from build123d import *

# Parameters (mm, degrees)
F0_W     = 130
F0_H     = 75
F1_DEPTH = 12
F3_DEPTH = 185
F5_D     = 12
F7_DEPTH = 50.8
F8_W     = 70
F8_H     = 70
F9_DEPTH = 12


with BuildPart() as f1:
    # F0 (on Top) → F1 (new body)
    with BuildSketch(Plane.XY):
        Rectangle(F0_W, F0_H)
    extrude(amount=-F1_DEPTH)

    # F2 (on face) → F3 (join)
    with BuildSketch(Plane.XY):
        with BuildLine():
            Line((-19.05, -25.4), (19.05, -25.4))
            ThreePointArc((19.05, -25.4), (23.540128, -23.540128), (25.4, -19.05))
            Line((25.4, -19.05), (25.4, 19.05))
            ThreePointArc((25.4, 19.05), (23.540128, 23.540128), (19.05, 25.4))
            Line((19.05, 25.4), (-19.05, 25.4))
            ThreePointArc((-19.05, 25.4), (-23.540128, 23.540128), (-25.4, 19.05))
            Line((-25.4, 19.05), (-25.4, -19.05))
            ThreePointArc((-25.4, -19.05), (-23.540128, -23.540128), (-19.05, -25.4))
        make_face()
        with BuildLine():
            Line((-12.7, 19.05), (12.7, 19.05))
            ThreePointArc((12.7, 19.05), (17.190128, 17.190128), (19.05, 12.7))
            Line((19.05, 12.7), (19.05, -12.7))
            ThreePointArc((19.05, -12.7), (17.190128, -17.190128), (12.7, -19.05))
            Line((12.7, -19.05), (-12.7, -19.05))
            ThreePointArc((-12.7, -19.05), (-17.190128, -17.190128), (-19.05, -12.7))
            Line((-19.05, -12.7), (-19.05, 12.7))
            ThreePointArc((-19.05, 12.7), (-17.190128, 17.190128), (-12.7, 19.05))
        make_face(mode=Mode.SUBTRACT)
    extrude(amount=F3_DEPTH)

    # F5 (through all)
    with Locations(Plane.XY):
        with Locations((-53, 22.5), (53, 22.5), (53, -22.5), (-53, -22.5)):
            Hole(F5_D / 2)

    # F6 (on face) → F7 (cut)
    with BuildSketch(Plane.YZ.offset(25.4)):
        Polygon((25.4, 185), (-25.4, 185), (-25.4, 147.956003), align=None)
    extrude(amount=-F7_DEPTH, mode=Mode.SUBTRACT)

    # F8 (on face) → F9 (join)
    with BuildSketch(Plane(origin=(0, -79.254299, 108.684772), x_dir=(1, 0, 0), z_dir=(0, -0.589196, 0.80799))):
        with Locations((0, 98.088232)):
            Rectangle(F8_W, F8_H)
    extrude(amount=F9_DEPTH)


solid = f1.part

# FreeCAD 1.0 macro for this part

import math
import FreeCAD as App
import Part
import Sketcher
from FreeCAD import Vector
Q = App.Units.Quantity


def add_polygon(sketch, points):
    """Adds a closed chain of lines whose ends are joined by coincident constraints."""
    first, n = sketch.GeometryCount, len(points)
    for a, b in zip(points, points[1:] + points[:1]):
        sketch.addGeometry(Part.LineSegment(App.Vector(*a, 0), App.Vector(*b, 0)), False)
    for i in range(n):
        sketch.addConstraint(Sketcher.Constraint("Coincident", first + i, 2, first + (i + 1) % n, 1))

doc = App.newDocument("Part")
params = doc.addObject("Spreadsheet::Sheet", "Params")
for row, (alias, value) in enumerate([
    ("sketch1_width", "130 mm"),
    ("sketch1_height", "75 mm"),
    ("pad1_length", "12 mm"),
    ("sketch2_radius", "6.35 mm"),
    ("sketch2_width", "38.1 mm"),
    ("pad2_length", "185 mm"),
    ("sketch3_diameter", "12 mm"),
    ("hole_diameter", "12 mm"),
    ("sketch4_width", "50.8 mm"),
    ("pocket1_length", "50.8 mm"),
    ("sketch5_width", "70 mm"),
    ("pad3_length", "12 mm"),
], start=1):
    params.set(f"A{row}", alias)
    params.set(f"B{row}", "=" + value)
    params.setAlias(f"B{row}", alias)

body = doc.addObject("PartDesign::Body", "Body")

sketch1 = body.newObject("Sketcher::SketchObject", "Sketch")
sketch1.AttachmentSupport = (doc.getObject("XY_Plane"), [""])
sketch1.MapMode = "FlatFace"
add_polygon(sketch1, [(-65, 37.5), (-65, -37.5), (65, -37.5), (65, 37.5)])
sketch1.addConstraint(Sketcher.Constraint("Vertical", 0))
sketch1.addConstraint(Sketcher.Constraint("Horizontal", 1))
sketch1.addConstraint(Sketcher.Constraint("Vertical", 2))
sketch1.addConstraint(Sketcher.Constraint("Horizontal", 3))
sketch1.addConstraint(Sketcher.Constraint("Symmetric", 0, 2, 2, 2, -1, 1))
sketch1.addConstraint(Sketcher.Constraint("DistanceX", 1, 1, 1, 2, 130.0))
sketch1.addConstraint(Sketcher.Constraint("DistanceY", 0, 2, 0, 1, 75.0))
sketch1.setExpression("Constraints[9]", "Params.sketch1_width")
sketch1.setExpression("Constraints[10]", "Params.sketch1_height")
pad1 = body.newObject("PartDesign::Pad", "Pad")
pad1.Profile = sketch1
pad1.setExpression("Length", "Params.pad1_length")
pad1.Reversed = True

sketch2 = body.newObject("Sketcher::SketchObject", "Sketch001")
sketch2.AttachmentSupport = (doc.getObject("XY_Plane"), [""])
sketch2.MapMode = "FlatFace"
sketch2.addGeometry(Part.LineSegment(Vector(-19.05, -25.4, 0), Vector(19.05, -25.4, 0)), False)
sketch2.addGeometry(Part.ArcOfCircle(Part.Circle(Vector(19.05, -19.05, 0), Vector(0, 0, 1), 6.35), math.radians(-89.999998), math.radians(-0.000002)), False)
sketch2.addGeometry(Part.LineSegment(Vector(25.4, -19.05, 0), Vector(25.4, 19.05, 0)), False)
sketch2.addGeometry(Part.ArcOfCircle(Part.Circle(Vector(19.05, 19.05, 0), Vector(0, 0, 1), 6.35), math.radians(0.000002), math.radians(89.999998)), False)
sketch2.addGeometry(Part.LineSegment(Vector(19.05, 25.4, 0), Vector(-19.05, 25.4, 0)), False)
sketch2.addGeometry(Part.ArcOfCircle(Part.Circle(Vector(-19.05, 19.05, 0), Vector(0, 0, 1), 6.35), math.radians(90.000002), math.radians(179.999998)), False)
sketch2.addGeometry(Part.LineSegment(Vector(-25.4, 19.05, 0), Vector(-25.4, -19.05, 0)), False)
sketch2.addGeometry(Part.ArcOfCircle(Part.Circle(Vector(-19.05, -19.05, 0), Vector(0, 0, 1), 6.35), math.radians(-179.999998), math.radians(-90.000002)), False)
sketch2.addGeometry(Part.ArcOfCircle(Part.Circle(Vector(-12.7, 12.7, 0), Vector(0, 0, 1), 6.35), math.radians(90.000002), math.radians(179.999998)), False)
sketch2.addGeometry(Part.LineSegment(Vector(-12.7, 19.05, 0), Vector(12.7, 19.05, 0)), False)
sketch2.addGeometry(Part.ArcOfCircle(Part.Circle(Vector(12.7, 12.7, 0), Vector(0, 0, 1), 6.35), math.radians(0.000002), math.radians(89.999998)), False)
sketch2.addGeometry(Part.LineSegment(Vector(19.05, 12.7, 0), Vector(19.05, -12.7, 0)), False)
sketch2.addGeometry(Part.ArcOfCircle(Part.Circle(Vector(12.7, -12.7, 0), Vector(0, 0, 1), 6.35), math.radians(-89.999998), math.radians(-0.000002)), False)
sketch2.addGeometry(Part.LineSegment(Vector(12.7, -19.05, 0), Vector(-12.7, -19.05, 0)), False)
sketch2.addGeometry(Part.ArcOfCircle(Part.Circle(Vector(-12.7, -12.7, 0), Vector(0, 0, 1), 6.35), math.radians(-179.999998), math.radians(-90.000002)), False)
sketch2.addGeometry(Part.LineSegment(Vector(-19.05, -12.7, 0), Vector(-19.05, 12.7, 0)), False)
sketch2.addConstraint(Sketcher.Constraint("Tangent", 0, 2, 1, 1))
sketch2.addConstraint(Sketcher.Constraint("Tangent", 1, 2, 2, 1))
sketch2.addConstraint(Sketcher.Constraint("Tangent", 2, 2, 3, 1))
sketch2.addConstraint(Sketcher.Constraint("Tangent", 3, 2, 4, 1))
sketch2.addConstraint(Sketcher.Constraint("Tangent", 4, 2, 5, 1))
sketch2.addConstraint(Sketcher.Constraint("Tangent", 5, 2, 6, 1))
sketch2.addConstraint(Sketcher.Constraint("Tangent", 6, 2, 7, 1))
sketch2.addConstraint(Sketcher.Constraint("Tangent", 7, 2, 0, 1))
sketch2.addConstraint(Sketcher.Constraint("Tangent", 8, 1, 9, 1))
sketch2.addConstraint(Sketcher.Constraint("Tangent", 9, 2, 10, 2))
sketch2.addConstraint(Sketcher.Constraint("Tangent", 10, 1, 11, 1))
sketch2.addConstraint(Sketcher.Constraint("Tangent", 11, 2, 12, 2))
sketch2.addConstraint(Sketcher.Constraint("Tangent", 12, 1, 13, 1))
sketch2.addConstraint(Sketcher.Constraint("Tangent", 13, 2, 14, 2))
sketch2.addConstraint(Sketcher.Constraint("Tangent", 14, 1, 15, 1))
sketch2.addConstraint(Sketcher.Constraint("Tangent", 15, 2, 8, 2))
sketch2.addConstraint(Sketcher.Constraint("Horizontal", 0))
sketch2.addConstraint(Sketcher.Constraint("Vertical", 2))
sketch2.addConstraint(Sketcher.Constraint("Horizontal", 4))
sketch2.addConstraint(Sketcher.Constraint("Vertical", 6))
sketch2.addConstraint(Sketcher.Constraint("Horizontal", 9))
sketch2.addConstraint(Sketcher.Constraint("Vertical", 11))
sketch2.addConstraint(Sketcher.Constraint("Horizontal", 13))
sketch2.addConstraint(Sketcher.Constraint("Vertical", 15))
sketch2.addConstraint(Sketcher.Constraint("Equal", 1, 3))
sketch2.addConstraint(Sketcher.Constraint("Equal", 3, 5))
sketch2.addConstraint(Sketcher.Constraint("Equal", 5, 7))
sketch2.addConstraint(Sketcher.Constraint("Equal", 7, 8))
sketch2.addConstraint(Sketcher.Constraint("Equal", 8, 10))
sketch2.addConstraint(Sketcher.Constraint("Equal", 10, 12))
sketch2.addConstraint(Sketcher.Constraint("Equal", 12, 14))
sketch2.addConstraint(Sketcher.Constraint("Symmetric", 1, 3, 5, 3, -1, 1))
sketch2.addConstraint(Sketcher.Constraint("Symmetric", 8, 3, 12, 3, -1, 1))
sketch2.addConstraint(Sketcher.Constraint("Horizontal", 5, 2, 8, 1))
sketch2.addConstraint(Sketcher.Constraint("Vertical", 3, 2, 10, 1))
sketch2.addConstraint(Sketcher.Constraint("Equal", 4, 2))
sketch2.addConstraint(Sketcher.Constraint("Radius", 1, 6.35))
sketch2.addConstraint(Sketcher.Constraint("DistanceX", 0, 1, 0, 2, 38.1))
sketch2.setExpression("Constraints[36]", "Params.sketch2_radius")
sketch2.setExpression("Constraints[37]", "Params.sketch2_width")
pad2 = body.newObject("PartDesign::Pad", "Pad001")
pad2.Profile = sketch2
pad2.setExpression("Length", "Params.pad2_length")

sketch3 = body.newObject("Sketcher::SketchObject", "Sketch002")
sketch3.AttachmentSupport = (doc.getObject("XY_Plane"), [""])
sketch3.MapMode = "FlatFace"
sketch3.addGeometry(Part.Circle(Vector(-53, 22.5, 0), Vector(0, 0, 1), 6), False)
sketch3.addGeometry(Part.Circle(Vector(53, 22.5, 0), Vector(0, 0, 1), 6), False)
sketch3.addGeometry(Part.Circle(Vector(53, -22.5, 0), Vector(0, 0, 1), 6), False)
sketch3.addGeometry(Part.Circle(Vector(-53, -22.5, 0), Vector(0, 0, 1), 6), False)
sketch3.addConstraint(Sketcher.Constraint("Equal", 0, 1))
sketch3.addConstraint(Sketcher.Constraint("Equal", 1, 2))
sketch3.addConstraint(Sketcher.Constraint("Equal", 2, 3))
sketch3.addConstraint(Sketcher.Constraint("Symmetric", 0, 3, 2, 3, -1, 1))
sketch3.addConstraint(Sketcher.Constraint("Symmetric", 1, 3, 3, 3, -1, 1))
sketch3.addConstraint(Sketcher.Constraint("Symmetric", 0, 3, 1, 3, -2))
sketch3.addConstraint(Sketcher.Constraint("Diameter", 0, 12.0))
sketch3.addConstraint(Sketcher.Constraint("DistanceX", 0, 3, -1, 1, 53.0))
sketch3.addConstraint(Sketcher.Constraint("DistanceY", 2, 3, 1, 3, 45.0))
sketch3.setExpression("Constraints[6]", "Params.sketch3_diameter")
doc.recompute()
hole = body.newObject("PartDesign::Hole", "Hole")
hole.Profile = sketch3
hole.ThreadType = "None"
hole.setExpression("Diameter", "Params.hole_diameter")
hole.DepthType = "ThroughAll"

sketch4 = body.newObject("Sketcher::SketchObject", "Sketch003")
sketch4.AttachmentSupport = (doc.getObject("YZ_Plane"), [""])
sketch4.MapMode = "FlatFace"
sketch4.AttachmentOffset = App.Placement(Vector(0, 0, 25.4), App.Rotation())
add_polygon(sketch4, [(25.4, 185), (-25.4, 185), (-25.4, 147.956003)])
sketch4.addConstraint(Sketcher.Constraint("Horizontal", 0))
sketch4.addConstraint(Sketcher.Constraint("Vertical", 1))
sketch4.addConstraint(Sketcher.Constraint("DistanceX", 0, 2, 0, 1, 50.8))
sketch4.addConstraint(Sketcher.Constraint("DistanceY", -1, 1, 0, 2, 185.0))
sketch4.addConstraint(Sketcher.Constraint("Angle", 2, Q("36.1 deg")))
sketch4.addConstraint(Sketcher.Constraint("DistanceX", 0, 2, -1, 1, 25.4))
sketch4.setExpression("Constraints[5]", "Params.sketch4_width")
pocket1 = body.newObject("PartDesign::Pocket", "Pocket")
pocket1.Profile = sketch4
pocket1.setExpression("Length", "Params.pocket1_length")

sketch5 = body.newObject("Sketcher::SketchObject", "Sketch004")
sketch5.Placement = App.Placement(Vector(0, -79.254299, 108.684772), App.Rotation(Vector(1, 0, 0), Vector(0, 0.807990094, 0.589196069), Vector(0, -0.589196069, 0.807990094), "ZXY"))
add_polygon(sketch5, [(-35, 133.088232), (-35, 63.088232), (35, 63.088232), (35, 133.088232)])
sketch5.addConstraint(Sketcher.Constraint("Vertical", 0))
sketch5.addConstraint(Sketcher.Constraint("Horizontal", 1))
sketch5.addConstraint(Sketcher.Constraint("Vertical", 2))
sketch5.addConstraint(Sketcher.Constraint("Horizontal", 3))
sketch5.addConstraint(Sketcher.Constraint("Equal", 3, 0))
sketch5.addConstraint(Sketcher.Constraint("DistanceX", 1, 1, 1, 2, 70.0))
sketch5.addConstraint(Sketcher.Constraint("DistanceX", 0, 2, -1, 1, 35.0))
sketch5.addConstraint(Sketcher.Constraint("DistanceY", -1, 1, 0, 2, 63.088232))
sketch5.setExpression("Constraints[9]", "Params.sketch5_width")
pad3 = body.newObject("PartDesign::Pad", "Pad002")
pad3.Profile = sketch5
pad3.setExpression("Length", "Params.pad3_length")

doc.recompute()
